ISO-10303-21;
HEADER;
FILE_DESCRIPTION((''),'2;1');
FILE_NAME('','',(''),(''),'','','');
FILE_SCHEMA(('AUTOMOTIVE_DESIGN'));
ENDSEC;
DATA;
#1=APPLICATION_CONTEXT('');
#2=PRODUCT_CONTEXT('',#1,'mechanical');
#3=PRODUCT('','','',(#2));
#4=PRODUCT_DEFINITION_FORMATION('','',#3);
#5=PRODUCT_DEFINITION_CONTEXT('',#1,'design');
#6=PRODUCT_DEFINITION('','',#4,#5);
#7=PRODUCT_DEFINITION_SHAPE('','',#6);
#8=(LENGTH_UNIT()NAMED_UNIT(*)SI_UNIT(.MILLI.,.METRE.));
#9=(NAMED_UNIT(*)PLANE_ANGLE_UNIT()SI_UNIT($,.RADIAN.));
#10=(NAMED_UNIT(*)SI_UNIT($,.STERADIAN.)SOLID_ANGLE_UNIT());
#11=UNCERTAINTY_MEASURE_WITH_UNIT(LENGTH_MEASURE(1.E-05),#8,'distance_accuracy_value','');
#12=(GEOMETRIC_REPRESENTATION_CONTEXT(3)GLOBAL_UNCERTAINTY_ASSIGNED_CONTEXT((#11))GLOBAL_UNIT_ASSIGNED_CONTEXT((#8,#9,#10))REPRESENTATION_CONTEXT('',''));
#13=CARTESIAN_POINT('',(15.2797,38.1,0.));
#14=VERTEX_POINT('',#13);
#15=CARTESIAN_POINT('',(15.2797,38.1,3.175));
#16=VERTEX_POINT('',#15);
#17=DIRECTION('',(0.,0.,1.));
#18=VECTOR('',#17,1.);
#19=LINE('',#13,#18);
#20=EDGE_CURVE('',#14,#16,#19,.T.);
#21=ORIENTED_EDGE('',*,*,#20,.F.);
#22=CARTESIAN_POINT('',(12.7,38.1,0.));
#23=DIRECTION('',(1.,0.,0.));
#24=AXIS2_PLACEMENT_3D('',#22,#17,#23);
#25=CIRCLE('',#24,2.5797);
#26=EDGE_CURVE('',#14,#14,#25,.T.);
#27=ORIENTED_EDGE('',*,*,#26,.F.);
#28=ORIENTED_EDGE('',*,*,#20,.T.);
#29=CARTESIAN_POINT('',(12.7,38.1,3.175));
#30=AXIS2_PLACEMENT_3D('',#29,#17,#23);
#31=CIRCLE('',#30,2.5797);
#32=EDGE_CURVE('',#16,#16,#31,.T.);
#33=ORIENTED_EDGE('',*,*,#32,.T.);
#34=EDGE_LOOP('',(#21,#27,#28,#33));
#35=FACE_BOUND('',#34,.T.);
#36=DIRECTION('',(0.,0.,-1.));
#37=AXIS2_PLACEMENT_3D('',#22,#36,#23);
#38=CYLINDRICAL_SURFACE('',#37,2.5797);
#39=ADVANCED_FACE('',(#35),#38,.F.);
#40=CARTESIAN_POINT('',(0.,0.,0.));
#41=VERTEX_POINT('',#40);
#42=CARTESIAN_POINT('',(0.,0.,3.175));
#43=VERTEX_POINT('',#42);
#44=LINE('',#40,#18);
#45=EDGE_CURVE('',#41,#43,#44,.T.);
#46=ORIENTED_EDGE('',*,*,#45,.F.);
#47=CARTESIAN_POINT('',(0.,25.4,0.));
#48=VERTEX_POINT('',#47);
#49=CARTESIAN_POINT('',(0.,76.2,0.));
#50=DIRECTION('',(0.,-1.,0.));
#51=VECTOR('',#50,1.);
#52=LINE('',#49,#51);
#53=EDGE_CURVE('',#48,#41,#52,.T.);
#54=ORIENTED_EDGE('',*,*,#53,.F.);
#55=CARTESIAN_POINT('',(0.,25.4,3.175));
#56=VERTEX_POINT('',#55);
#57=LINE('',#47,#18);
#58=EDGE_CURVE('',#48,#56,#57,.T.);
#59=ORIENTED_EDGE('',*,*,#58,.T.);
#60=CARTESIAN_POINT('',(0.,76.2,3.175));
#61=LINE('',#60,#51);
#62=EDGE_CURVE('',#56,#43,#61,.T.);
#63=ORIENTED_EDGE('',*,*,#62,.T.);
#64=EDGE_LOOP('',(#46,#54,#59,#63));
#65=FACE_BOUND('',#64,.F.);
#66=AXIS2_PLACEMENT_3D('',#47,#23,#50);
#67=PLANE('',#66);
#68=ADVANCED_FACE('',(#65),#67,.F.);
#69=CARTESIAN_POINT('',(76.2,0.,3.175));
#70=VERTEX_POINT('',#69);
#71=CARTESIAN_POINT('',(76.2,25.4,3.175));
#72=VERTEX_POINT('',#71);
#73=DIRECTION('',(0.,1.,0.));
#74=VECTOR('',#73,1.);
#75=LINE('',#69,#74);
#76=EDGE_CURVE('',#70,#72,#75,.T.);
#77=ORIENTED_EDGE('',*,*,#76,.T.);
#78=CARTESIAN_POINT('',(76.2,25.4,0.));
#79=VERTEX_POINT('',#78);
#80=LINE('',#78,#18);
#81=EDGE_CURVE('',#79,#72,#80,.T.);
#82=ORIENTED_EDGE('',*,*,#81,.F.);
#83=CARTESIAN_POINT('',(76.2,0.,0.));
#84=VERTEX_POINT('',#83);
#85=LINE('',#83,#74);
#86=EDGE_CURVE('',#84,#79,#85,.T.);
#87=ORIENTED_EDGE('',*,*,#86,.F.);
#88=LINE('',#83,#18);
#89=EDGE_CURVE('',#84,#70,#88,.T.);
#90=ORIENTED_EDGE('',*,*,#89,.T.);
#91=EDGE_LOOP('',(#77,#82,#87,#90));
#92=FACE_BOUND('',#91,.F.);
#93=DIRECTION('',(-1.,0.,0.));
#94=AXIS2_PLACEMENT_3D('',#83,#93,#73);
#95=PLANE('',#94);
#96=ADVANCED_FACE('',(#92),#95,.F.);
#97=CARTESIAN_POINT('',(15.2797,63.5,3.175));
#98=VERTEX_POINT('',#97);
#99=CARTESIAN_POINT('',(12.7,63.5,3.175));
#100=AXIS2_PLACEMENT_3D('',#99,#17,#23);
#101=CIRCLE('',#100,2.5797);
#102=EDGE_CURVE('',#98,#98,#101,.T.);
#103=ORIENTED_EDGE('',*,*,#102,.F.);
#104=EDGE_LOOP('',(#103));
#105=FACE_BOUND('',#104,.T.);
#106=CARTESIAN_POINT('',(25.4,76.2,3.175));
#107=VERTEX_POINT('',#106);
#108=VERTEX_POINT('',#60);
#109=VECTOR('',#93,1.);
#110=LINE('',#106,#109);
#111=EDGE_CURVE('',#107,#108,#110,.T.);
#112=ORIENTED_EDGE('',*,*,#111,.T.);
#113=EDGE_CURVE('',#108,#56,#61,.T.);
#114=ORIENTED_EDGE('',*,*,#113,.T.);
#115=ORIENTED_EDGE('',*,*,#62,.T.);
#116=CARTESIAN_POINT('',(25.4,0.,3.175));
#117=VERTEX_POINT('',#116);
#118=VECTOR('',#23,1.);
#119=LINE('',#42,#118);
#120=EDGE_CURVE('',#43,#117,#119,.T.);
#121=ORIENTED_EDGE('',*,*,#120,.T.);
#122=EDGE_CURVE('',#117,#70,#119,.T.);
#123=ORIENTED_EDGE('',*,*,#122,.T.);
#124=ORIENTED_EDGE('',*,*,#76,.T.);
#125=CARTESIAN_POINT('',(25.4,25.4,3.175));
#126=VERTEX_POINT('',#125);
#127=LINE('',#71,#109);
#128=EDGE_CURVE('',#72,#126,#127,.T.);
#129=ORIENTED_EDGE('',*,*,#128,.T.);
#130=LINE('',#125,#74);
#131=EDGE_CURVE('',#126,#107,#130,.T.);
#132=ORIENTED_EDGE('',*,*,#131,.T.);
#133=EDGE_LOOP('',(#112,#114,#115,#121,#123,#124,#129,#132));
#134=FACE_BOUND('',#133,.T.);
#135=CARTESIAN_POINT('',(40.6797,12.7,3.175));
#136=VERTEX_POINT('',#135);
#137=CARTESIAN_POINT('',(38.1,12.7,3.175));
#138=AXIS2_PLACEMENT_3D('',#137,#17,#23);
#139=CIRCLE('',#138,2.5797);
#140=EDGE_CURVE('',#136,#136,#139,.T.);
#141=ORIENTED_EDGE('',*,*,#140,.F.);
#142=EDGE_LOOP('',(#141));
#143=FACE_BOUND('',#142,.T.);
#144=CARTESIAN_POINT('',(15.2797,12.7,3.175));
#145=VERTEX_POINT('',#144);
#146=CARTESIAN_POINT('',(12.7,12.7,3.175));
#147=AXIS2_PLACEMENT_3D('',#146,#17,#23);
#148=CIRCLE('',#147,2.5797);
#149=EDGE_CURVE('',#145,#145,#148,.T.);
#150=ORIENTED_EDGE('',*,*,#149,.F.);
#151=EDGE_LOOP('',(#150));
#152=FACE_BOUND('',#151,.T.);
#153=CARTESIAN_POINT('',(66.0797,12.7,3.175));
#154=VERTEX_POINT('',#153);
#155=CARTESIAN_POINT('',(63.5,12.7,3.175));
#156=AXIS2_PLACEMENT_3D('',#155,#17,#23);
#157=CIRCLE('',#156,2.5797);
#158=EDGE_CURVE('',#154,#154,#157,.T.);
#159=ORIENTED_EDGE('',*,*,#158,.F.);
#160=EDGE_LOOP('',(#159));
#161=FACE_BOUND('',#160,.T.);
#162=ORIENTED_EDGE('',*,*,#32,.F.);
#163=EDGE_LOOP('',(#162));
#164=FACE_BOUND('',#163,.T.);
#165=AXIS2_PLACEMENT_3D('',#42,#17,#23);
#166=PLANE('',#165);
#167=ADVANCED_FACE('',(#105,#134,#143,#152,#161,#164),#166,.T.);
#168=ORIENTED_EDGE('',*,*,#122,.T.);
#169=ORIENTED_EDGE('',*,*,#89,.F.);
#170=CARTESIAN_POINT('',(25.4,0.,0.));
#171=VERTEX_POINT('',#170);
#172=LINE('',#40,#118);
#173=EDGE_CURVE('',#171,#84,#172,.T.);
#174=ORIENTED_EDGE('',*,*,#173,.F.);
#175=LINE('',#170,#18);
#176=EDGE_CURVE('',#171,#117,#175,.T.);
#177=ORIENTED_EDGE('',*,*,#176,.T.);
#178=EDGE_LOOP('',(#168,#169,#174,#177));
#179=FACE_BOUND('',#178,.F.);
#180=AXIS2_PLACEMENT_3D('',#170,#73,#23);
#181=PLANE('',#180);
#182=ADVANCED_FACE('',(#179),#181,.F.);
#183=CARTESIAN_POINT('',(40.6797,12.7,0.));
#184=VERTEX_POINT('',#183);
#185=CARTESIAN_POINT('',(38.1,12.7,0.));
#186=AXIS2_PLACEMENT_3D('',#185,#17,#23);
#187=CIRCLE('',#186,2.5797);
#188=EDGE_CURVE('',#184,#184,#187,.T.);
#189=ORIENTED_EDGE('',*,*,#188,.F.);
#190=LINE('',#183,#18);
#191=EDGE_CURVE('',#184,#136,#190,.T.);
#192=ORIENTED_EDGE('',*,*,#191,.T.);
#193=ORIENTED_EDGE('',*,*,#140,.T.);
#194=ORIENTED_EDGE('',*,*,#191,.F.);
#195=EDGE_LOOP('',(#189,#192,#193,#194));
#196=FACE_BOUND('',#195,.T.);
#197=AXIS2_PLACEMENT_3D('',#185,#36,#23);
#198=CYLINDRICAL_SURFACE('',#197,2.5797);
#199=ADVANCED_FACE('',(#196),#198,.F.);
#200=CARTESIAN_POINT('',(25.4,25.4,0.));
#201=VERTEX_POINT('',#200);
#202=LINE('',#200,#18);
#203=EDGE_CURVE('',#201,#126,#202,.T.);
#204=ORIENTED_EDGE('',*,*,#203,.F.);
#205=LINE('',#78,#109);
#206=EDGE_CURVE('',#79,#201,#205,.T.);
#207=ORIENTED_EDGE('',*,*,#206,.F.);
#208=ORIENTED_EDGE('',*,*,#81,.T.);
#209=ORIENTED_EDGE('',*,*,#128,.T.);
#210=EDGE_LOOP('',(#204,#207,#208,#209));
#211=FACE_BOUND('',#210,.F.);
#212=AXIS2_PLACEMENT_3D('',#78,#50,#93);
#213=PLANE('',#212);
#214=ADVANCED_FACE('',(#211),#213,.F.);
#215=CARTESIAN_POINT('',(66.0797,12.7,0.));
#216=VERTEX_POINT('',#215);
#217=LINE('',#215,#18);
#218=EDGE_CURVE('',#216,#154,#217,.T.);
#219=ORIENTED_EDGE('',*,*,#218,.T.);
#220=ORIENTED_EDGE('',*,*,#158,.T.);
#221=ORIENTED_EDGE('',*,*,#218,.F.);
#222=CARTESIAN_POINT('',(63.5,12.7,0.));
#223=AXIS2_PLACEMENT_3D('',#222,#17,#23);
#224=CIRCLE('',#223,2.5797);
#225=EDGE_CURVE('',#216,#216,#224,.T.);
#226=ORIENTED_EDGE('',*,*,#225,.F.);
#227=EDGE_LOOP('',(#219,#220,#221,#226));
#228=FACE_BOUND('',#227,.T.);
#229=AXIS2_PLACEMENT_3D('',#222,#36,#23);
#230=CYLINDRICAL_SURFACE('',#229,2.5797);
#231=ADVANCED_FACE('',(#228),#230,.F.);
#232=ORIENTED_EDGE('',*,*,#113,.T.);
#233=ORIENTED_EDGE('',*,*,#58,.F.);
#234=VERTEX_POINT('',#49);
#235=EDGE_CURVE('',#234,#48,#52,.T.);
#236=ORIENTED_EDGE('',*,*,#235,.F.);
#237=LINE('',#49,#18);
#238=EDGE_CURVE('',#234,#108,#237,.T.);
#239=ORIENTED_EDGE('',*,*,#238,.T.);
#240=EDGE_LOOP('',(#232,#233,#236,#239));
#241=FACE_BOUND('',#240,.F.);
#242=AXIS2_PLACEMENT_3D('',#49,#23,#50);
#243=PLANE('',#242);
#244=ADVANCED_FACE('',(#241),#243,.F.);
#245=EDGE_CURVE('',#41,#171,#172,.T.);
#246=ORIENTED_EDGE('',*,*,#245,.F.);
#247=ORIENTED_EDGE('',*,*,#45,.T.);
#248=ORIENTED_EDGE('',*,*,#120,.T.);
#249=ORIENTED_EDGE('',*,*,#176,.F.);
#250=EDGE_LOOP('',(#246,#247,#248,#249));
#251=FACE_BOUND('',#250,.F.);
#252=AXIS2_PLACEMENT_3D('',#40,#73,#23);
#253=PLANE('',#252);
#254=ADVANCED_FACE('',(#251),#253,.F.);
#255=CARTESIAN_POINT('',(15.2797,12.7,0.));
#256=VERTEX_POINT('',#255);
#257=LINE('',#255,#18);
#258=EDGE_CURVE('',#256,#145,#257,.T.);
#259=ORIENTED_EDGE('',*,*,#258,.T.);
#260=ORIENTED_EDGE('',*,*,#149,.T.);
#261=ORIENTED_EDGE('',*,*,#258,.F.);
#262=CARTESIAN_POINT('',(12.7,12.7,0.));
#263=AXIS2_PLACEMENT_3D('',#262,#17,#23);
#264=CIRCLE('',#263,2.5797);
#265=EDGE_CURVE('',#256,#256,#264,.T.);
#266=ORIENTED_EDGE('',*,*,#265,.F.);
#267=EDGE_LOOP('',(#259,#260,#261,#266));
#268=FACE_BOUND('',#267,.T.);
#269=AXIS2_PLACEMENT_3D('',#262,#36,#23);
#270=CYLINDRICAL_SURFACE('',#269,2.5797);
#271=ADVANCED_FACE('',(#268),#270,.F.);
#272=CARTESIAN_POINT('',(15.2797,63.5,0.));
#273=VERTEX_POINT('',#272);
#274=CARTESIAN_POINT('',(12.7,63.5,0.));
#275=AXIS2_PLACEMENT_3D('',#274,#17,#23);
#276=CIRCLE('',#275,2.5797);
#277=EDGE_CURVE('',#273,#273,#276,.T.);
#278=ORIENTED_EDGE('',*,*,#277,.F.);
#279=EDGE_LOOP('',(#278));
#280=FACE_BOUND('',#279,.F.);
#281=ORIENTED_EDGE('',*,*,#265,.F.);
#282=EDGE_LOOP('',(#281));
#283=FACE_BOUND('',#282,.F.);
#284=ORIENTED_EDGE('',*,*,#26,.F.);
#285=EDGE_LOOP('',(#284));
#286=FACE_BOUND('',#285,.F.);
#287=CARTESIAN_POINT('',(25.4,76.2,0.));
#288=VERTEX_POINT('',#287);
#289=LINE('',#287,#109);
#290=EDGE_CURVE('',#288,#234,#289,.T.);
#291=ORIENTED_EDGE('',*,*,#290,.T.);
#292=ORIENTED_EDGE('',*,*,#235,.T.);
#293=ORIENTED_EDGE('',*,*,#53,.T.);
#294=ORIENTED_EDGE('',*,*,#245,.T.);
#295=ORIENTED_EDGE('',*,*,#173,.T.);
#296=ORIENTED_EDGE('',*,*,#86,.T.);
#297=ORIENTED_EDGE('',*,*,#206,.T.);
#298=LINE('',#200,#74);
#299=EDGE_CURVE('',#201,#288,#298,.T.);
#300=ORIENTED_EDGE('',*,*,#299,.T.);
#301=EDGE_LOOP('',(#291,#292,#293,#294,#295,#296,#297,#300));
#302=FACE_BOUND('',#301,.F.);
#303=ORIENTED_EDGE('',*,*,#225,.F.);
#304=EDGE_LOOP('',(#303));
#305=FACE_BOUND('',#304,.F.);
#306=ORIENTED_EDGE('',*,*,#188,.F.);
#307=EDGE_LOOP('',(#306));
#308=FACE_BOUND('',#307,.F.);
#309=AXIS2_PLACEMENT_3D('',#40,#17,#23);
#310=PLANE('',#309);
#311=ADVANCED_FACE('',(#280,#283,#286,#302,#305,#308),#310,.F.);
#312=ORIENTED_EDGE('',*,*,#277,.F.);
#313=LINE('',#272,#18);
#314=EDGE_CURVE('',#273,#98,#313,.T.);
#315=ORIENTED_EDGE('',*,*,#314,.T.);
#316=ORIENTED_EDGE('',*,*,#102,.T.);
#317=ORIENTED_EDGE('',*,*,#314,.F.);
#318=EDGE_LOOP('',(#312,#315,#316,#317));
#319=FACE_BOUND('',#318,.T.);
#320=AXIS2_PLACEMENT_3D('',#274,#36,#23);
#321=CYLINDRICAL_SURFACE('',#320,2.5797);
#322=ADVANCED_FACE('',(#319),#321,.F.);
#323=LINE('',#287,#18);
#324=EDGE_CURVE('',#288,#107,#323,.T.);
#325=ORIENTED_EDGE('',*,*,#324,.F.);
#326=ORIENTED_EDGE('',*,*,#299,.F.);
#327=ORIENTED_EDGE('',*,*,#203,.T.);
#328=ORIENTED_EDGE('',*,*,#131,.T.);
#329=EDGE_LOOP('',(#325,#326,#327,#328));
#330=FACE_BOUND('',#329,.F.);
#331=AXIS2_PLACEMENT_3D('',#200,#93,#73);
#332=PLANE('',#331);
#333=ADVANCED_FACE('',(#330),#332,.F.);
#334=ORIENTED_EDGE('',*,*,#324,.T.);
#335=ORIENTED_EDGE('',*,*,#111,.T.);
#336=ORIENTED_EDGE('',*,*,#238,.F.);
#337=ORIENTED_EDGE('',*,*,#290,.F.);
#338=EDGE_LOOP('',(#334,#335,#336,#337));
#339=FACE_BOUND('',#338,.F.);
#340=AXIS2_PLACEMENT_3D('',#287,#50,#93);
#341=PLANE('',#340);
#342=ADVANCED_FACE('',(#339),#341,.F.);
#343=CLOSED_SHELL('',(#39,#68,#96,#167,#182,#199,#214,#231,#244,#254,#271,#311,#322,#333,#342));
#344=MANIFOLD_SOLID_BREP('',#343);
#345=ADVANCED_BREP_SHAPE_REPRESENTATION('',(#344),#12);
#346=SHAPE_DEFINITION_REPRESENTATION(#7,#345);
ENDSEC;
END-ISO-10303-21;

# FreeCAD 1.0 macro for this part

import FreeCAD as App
import Part
import Sketcher
Q = App.Units.Quantity

doc = App.newDocument("Part")
body = doc.addObject("PartDesign::Body", "Body")

# Sketch on XY plane
sketch1 = doc.addObject("Sketcher::SketchObject", "Sketch")
body.addObject(sketch1)
sketch1.AttachmentSupport = (doc.XY_Plane, [""])
sketch1.MapMode = "FlatFace"
sketch1.addGeometry([
    Part.LineSegment(App.Vector(0, 76.2, 0), App.Vector(0, 0, 0)),  # 0
    Part.LineSegment(App.Vector(0, 0, 0), App.Vector(76.2, 0, 0)),  # 1
    Part.LineSegment(App.Vector(76.2, 0, 0), App.Vector(76.2, 25.4, 0)),  # 2
    Part.LineSegment(App.Vector(76.2, 25.4, 0), App.Vector(25.4, 25.4, 0)),  # 3
    Part.LineSegment(App.Vector(25.4, 25.4, 0), App.Vector(25.4, 76.2, 0)),  # 4
    Part.LineSegment(App.Vector(25.4, 76.2, 0), App.Vector(0, 76.2, 0)),  # 5
    Part.Circle(App.Vector(12.7, 12.7, 0), App.Vector(0, 0, 1), 2.6),  # 6
    Part.Circle(App.Vector(38.1, 12.7, 0), App.Vector(0, 0, 1), 2.6),  # 7
    Part.Circle(App.Vector(63.5, 12.7, 0), App.Vector(0, 0, 1), 2.6),  # 8
    Part.Circle(App.Vector(12.7, 38.1, 0), App.Vector(0, 0, 1), 2.6),  # 9
    Part.Circle(App.Vector(12.7, 63.5, 0), App.Vector(0, 0, 1), 2.6),  # 10
], False)
sketch1.addConstraint([
    Sketcher.Constraint("Coincident", 0, 2, 1, 1),
    Sketcher.Constraint("Coincident", 1, 2, 2, 1),
    Sketcher.Constraint("Coincident", 2, 2, 3, 1),
    Sketcher.Constraint("Coincident", 3, 2, 4, 1),
    Sketcher.Constraint("Coincident", 4, 2, 5, 1),
    Sketcher.Constraint("Coincident", 5, 2, 0, 1),
    Sketcher.Constraint("Vertical", 0),
    Sketcher.Constraint("Horizontal", 1),
    Sketcher.Constraint("Vertical", 2),
    Sketcher.Constraint("Horizontal", 3),
    Sketcher.Constraint("Vertical", 4),
    Sketcher.Constraint("Horizontal", 5),
    Sketcher.Constraint("Coincident", 0, 2, -1, 1),
    Sketcher.Constraint("Equal", 6, 7),
    Sketcher.Constraint("Equal", 7, 8),
    Sketcher.Constraint("Equal", 8, 9),
    Sketcher.Constraint("Equal", 9, 10),
    Sketcher.Constraint("Horizontal", 6, 3, 7, 3),
    Sketcher.Constraint("Horizontal", 7, 3, 8, 3),
    Sketcher.Constraint("Vertical", 6, 3, 9, 3),
    Sketcher.Constraint("Vertical", 9, 3, 10, 3),
    Sketcher.Constraint("Equal", 1, 0),
    Sketcher.Constraint("Equal", 5, 2),
    Sketcher.Constraint("DistanceX", 1, 1, 1, 2, Q("3 in")),
    Sketcher.Constraint("DistanceX", 5, 2, 5, 1, Q("1 in")),
    Sketcher.Constraint("Diameter", 6, Q("0.203126 in")),
    Sketcher.Constraint("DistanceX", 6, 3, 7, 3, Q("1 in")),
    Sketcher.Constraint("DistanceX", 7, 3, 8, 3, Q("1 in")),
    Sketcher.Constraint("DistanceY", 6, 3, 9, 3, Q("1 in")),
    Sketcher.Constraint("DistanceY", 9, 3, 10, 3, Q("1 in")),
    Sketcher.Constraint("DistanceX", -1, 1, 6, 3, Q("0.5 in")),
    Sketcher.Constraint("DistanceY", -1, 1, 6, 3, Q("0.5 in")),
])
pad1 = doc.addObject("PartDesign::Pad", "Pad")
body.addObject(pad1)
pad1.Profile = sketch1
pad1.Length = Q("0.125 in")

doc.recompute()
